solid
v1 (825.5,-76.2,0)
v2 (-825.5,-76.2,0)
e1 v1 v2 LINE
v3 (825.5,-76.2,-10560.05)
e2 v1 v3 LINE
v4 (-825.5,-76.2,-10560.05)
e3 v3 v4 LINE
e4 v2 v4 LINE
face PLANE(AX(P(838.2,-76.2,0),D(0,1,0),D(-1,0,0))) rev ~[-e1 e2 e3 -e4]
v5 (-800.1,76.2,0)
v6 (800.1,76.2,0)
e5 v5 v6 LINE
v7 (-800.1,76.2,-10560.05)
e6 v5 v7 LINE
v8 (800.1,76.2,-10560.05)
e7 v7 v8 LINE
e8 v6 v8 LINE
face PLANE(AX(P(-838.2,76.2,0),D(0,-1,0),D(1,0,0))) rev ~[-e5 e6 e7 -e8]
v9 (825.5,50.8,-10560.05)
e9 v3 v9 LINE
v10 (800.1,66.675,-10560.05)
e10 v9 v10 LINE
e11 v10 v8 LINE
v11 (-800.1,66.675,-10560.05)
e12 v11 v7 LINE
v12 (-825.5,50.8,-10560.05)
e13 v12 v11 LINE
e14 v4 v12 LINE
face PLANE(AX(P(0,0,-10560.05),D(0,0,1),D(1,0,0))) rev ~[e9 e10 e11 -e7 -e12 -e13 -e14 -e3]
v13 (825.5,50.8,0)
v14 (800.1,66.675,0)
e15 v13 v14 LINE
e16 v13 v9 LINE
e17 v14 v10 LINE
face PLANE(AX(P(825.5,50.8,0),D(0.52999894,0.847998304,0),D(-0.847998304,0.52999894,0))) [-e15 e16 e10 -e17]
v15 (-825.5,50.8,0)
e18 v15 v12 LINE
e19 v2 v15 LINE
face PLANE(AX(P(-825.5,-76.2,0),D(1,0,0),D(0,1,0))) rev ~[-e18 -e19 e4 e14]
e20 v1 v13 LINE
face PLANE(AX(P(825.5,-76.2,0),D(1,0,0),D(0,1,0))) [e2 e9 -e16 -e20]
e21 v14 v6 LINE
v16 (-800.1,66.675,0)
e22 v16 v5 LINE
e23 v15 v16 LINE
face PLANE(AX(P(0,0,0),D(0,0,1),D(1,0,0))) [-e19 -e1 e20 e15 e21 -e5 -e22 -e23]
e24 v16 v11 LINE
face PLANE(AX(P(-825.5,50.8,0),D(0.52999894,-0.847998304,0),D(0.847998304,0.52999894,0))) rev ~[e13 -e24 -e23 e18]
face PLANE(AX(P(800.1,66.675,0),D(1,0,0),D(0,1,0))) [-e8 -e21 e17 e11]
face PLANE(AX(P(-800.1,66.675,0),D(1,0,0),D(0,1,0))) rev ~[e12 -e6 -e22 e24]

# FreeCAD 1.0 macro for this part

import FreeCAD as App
import Part
import Sketcher

V = App.Vector
Q = App.Units.Quantity

doc = App.newDocument("Part")
body = doc.addObject("PartDesign::Body", "Body")

# Sketch on XY plane
sketch1 = doc.addObject("Sketcher::SketchObject", "Sketch")
body.addObject(sketch1)
sketch1.AttachmentSupport = (doc.XY_Plane, [""])
sketch1.MapMode = "FlatFace"
sketch1.addGeometry(Part.LineSegment(V(-838.2, -76.2, 0), V(838.2, -76.2, 0)), False)
sketch1.addGeometry(Part.LineSegment(V(838.2, -76.2, 0), V(838.2, 76.2, 0)), False)
sketch1.addGeometry(Part.LineSegment(V(838.2, 76.2, 0), V(-838.2, 76.2, 0)), False)
sketch1.addGeometry(Part.LineSegment(V(-838.2, 76.2, 0), V(-838.2, -76.2, 0)), False)
sketch1.addConstraint(Sketcher.Constraint("Coincident", 0, 2, 1, 1))
sketch1.addConstraint(Sketcher.Constraint("Coincident", 1, 2, 2, 1))
sketch1.addConstraint(Sketcher.Constraint("Coincident", 2, 2, 3, 1))
sketch1.addConstraint(Sketcher.Constraint("Coincident", 3, 2, 0, 1))
sketch1.addConstraint(Sketcher.Constraint("Horizontal", 0))
sketch1.addConstraint(Sketcher.Constraint("Vertical", 1))
sketch1.addConstraint(Sketcher.Constraint("Horizontal", 2))
sketch1.addConstraint(Sketcher.Constraint("Vertical", 3))
sketch1.addConstraint(Sketcher.Constraint("Symmetric", 0, 2, 2, 2, -1, 1))
sketch1.addConstraint(Sketcher.Constraint("DistanceX", 0, 1, 0, 2, Q("66 in")))
sketch1.addConstraint(Sketcher.Constraint("DistanceY", 1, 1, 1, 2, Q("6 in")))
pad1 = doc.addObject("PartDesign::Pad", "Pad")
body.addObject(pad1)
pad1.Profile = sketch1
pad1.Length = Q("415.75 in")
pad1.Reversed = True

# Sketch on XY plane
sketch2 = doc.addObject("Sketcher::SketchObject", "Sketch001")
body.addObject(sketch2)
sketch2.AttachmentSupport = (doc.XY_Plane, [""])
sketch2.MapMode = "FlatFace"
sketch2.addGeometry(Part.LineSegment(V(825.5, -76.2, 0), V(838.2, -76.2, 0)), False)
sketch2.addGeometry(Part.LineSegment(V(838.2, -76.2, 0), V(838.2, 76.2, 0)), False)
sketch2.addGeometry(Part.LineSegment(V(838.2, 76.2, 0), V(800.1, 76.2, 0)), False)
sketch2.addGeometry(Part.LineSegment(V(800.1, 76.2, 0), V(800.1, 66.675, 0)), False)
sketch2.addGeometry(Part.LineSegment(V(800.1, 66.675, 0), V(825.5, 50.8, 0)), False)
sketch2.addGeometry(Part.LineSegment(V(825.5, 50.8, 0), V(825.5, -76.2, 0)), False)
sketch2.addGeometry(Part.LineSegment(V(-838.2, -76.2, 0), V(-825.5, -76.2, 0)), False)
sketch2.addGeometry(Part.LineSegment(V(-825.5, -76.2, 0), V(-825.5, 50.8, 0)), False)
sketch2.addGeometry(Part.LineSegment(V(-825.5, 50.8, 0), V(-800.1, 66.675, 0)), False)
sketch2.addGeometry(Part.LineSegment(V(-800.1, 66.675, 0), V(-800.1, 76.2, 0)), False)
sketch2.addGeometry(Part.LineSegment(V(-800.1, 76.2, 0), V(-838.2, 76.2, 0)), False)
sketch2.addGeometry(Part.LineSegment(V(-838.2, 76.2, 0), V(-838.2, -76.2, 0)), False)
sketch2.addConstraint(Sketcher.Constraint("Coincident", 0, 2, 1, 1))
sketch2.addConstraint(Sketcher.Constraint("Coincident", 1, 2, 2, 1))
sketch2.addConstraint(Sketcher.Constraint("Coincident", 2, 2, 3, 1))
sketch2.addConstraint(Sketcher.Constraint("Coincident", 3, 2, 4, 1))
sketch2.addConstraint(Sketcher.Constraint("Coincident", 4, 2, 5, 1))
sketch2.addConstraint(Sketcher.Constraint("Coincident", 5, 2, 0, 1))
sketch2.addConstraint(Sketcher.Constraint("Coincident", 6, 2, 7, 1))
sketch2.addConstraint(Sketcher.Constraint("Coincident", 7, 2, 8, 1))
sketch2.addConstraint(Sketcher.Constraint("Coincident", 8, 2, 9, 1))
sketch2.addConstraint(Sketcher.Constraint("Coincident", 9, 2, 10, 1))
sketch2.addConstraint(Sketcher.Constraint("Coincident", 10, 2, 11, 1))
sketch2.addConstraint(Sketcher.Constraint("Coincident", 11, 2, 6, 1))
sketch2.addConstraint(Sketcher.Constraint("Horizontal", 0))
sketch2.addConstraint(Sketcher.Constraint("Vertical", 1))
sketch2.addConstraint(Sketcher.Constraint("Horizontal", 2))
sketch2.addConstraint(Sketcher.Constraint("Vertical", 3))
sketch2.addConstraint(Sketcher.Constraint("Vertical", 5))
sketch2.addConstraint(Sketcher.Constraint("Horizontal", 6))
sketch2.addConstraint(Sketcher.Constraint("Vertical", 7))
sketch2.addConstraint(Sketcher.Constraint("Vertical", 9))
sketch2.addConstraint(Sketcher.Constraint("Horizontal", 10))
sketch2.addConstraint(Sketcher.Constraint("Vertical", 11))
sketch2.addConstraint(Sketcher.Constraint("Symmetric", 0, 2, 10, 2, -1, 1))
sketch2.addConstraint(Sketcher.Constraint("Symmetric", 5, 2, 6, 2, -2))
sketch2.addConstraint(Sketcher.Constraint("Symmetric", 3, 2, 8, 2, -2))
sketch2.addConstraint(Sketcher.Constraint("Horizontal", 4, 2, 7, 2))
sketch2.addConstraint(Sketcher.Constraint("Horizontal", 2, 2, 9, 2))
sketch2.addConstraint(Sketcher.Constraint("DistanceY", 5, 2, 5, 1, Q("5 in")))
sketch2.addConstraint(Sketcher.Constraint("DistanceX", 0, 1, 0, 2, Q("0.5 in")))
sketch2.addConstraint(Sketcher.Constraint("DistanceY", 4, 2, 1, 2, Q("1 in")))
sketch2.addConstraint(Sketcher.Constraint("DistanceX", 3, 2, 4, 2, Q("1 in")))
sketch2.addConstraint(Sketcher.Constraint("DistanceX", -1, 1, 0, 2, Q("33 in")))
sketch2.addConstraint(Sketcher.Constraint("DistanceY", 4, 2, 3, 2, Q("0.625 in")))
pocket1 = doc.addObject("PartDesign::Pocket", "Pocket")
body.addObject(pocket1)
pocket1.Profile = sketch2
pocket1.Type = "ThroughAll"

doc.recompute()
